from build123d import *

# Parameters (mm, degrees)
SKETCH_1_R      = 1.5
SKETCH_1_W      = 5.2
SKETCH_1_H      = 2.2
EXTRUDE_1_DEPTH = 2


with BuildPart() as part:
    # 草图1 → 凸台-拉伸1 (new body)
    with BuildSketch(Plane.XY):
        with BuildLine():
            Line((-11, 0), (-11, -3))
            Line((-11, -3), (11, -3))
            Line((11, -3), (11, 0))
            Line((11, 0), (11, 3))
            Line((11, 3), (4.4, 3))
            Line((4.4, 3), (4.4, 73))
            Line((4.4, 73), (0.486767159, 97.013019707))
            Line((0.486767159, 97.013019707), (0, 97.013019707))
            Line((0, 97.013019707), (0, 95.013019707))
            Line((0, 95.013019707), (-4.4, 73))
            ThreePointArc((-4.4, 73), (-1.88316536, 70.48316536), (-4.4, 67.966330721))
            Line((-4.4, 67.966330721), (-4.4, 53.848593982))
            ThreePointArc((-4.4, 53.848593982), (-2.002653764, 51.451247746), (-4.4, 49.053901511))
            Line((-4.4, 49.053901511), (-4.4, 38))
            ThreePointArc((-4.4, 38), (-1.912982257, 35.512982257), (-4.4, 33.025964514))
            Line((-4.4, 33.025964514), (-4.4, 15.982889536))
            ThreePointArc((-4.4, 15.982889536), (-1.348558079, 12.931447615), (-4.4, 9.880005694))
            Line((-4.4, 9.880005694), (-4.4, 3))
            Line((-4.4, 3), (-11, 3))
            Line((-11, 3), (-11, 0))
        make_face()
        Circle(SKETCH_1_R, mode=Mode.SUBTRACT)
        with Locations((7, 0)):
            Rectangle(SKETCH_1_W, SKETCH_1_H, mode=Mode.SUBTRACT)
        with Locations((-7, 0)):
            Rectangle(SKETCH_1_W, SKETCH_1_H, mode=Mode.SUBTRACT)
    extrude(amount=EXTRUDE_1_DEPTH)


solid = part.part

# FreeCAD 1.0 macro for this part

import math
import FreeCAD as App
import Part
import Sketcher
from FreeCAD import Vector


def add_polygon(sketch, points):
    """Adds a closed chain of lines whose ends are joined by coincident constraints."""
    first, n = sketch.GeometryCount, len(points)
    for a, b in zip(points, points[1:] + points[:1]):
        sketch.addGeometry(Part.LineSegment(App.Vector(*a, 0), App.Vector(*b, 0)), False)
    for i in range(n):
        sketch.addConstraint(Sketcher.Constraint("Coincident", first + i, 2, first + (i + 1) % n, 1))

doc = App.newDocument("Part")
body = doc.addObject("PartDesign::Body", "Body")

# Sketch on XY plane
sketch1 = doc.addObject("Sketcher::SketchObject", "Sketch")
body.addObject(sketch1)
sketch1.AttachmentSupport = (doc.XY_Plane, [""])
sketch1.MapMode = "FlatFace"
sketch1.addGeometry(Part.LineSegment(Vector(-11, -3, 0), Vector(11, -3, 0)), False)  # 0
sketch1.addGeometry(Part.LineSegment(Vector(11, -3, 0), Vector(11, 3, 0)), False)  # 1
sketch1.addGeometry(Part.LineSegment(Vector(11, 3, 0), Vector(4.4, 3, 0)), False)  # 2
sketch1.addGeometry(Part.LineSegment(Vector(4.4, 3, 0), Vector(4.4, 73, 0)), False)  # 3
sketch1.addGeometry(Part.LineSegment(Vector(4.4, 73, 0), Vector(0.49, 97.01, 0)), False)  # 4
sketch1.addGeometry(Part.LineSegment(Vector(0.49, 97.01, 0), Vector(0, 97.01, 0)), False)  # 5
sketch1.addGeometry(Part.LineSegment(Vector(0, 97.01, 0), Vector(0, 95.01, 0)), False)  # 6
sketch1.addGeometry(Part.LineSegment(Vector(0, 95.01, 0), Vector(-4.4, 73, 0)), False)  # 7
sketch1.addGeometry(Part.ArcOfCircle(Part.Circle(Vector(-4.4, 70.48, 0), Vector(0, 0, 1), 2.52), math.radians(-90), math.radians(90)), False)  # 8
sketch1.addGeometry(Part.LineSegment(Vector(-4.4, 67.97, 0), Vector(-4.4, 53.85, 0)), False)  # 9
sketch1.addGeometry(Part.ArcOfCircle(Part.Circle(Vector(-4.4, 51.45, 0), Vector(0, 0, 1), 2.4), math.radians(-90), math.radians(90)), False)  # 10
sketch1.addGeometry(Part.LineSegment(Vector(-4.4, 49.05, 0), Vector(-4.4, 38, 0)), False)  # 11
sketch1.addGeometry(Part.ArcOfCircle(Part.Circle(Vector(-4.4, 35.51, 0), Vector(0, 0, 1), 2.49), math.radians(-90), math.radians(90)), False)  # 12
sketch1.addGeometry(Part.LineSegment(Vector(-4.4, 33.03, 0), Vector(-4.4, 15.98, 0)), False)  # 13
sketch1.addGeometry(Part.ArcOfCircle(Part.Circle(Vector(-4.4, 12.93, 0), Vector(0, 0, 1), 3.05), math.radians(-90), math.radians(90)), False)  # 14
sketch1.addGeometry(Part.LineSegment(Vector(-4.4, 9.88, 0), Vector(-4.4, 3, 0)), False)  # 15
sketch1.addGeometry(Part.LineSegment(Vector(-4.4, 3, 0), Vector(-11, 3, 0)), False)  # 16
sketch1.addGeometry(Part.LineSegment(Vector(-11, 3, 0), Vector(-11, -3, 0)), False)  # 17
add_polygon(sketch1, [(-4.4, -1.1), (-9.6, -1.1), (-9.6, 1.1), (-4.4, 1.1)])  # lines 18-21
sketch1.addGeometry(Part.Circle(Vector(0, 0, 0), Vector(0, 0, 1), 1.5), False)  # 22
add_polygon(sketch1, [(9.6, -1.1), (4.4, -1.1), (4.4, 1.1), (9.6, 1.1)])  # lines 23-26
sketch1.addConstraint(Sketcher.Constraint("Coincident", 0, 2, 1, 1))
sketch1.addConstraint(Sketcher.Constraint("Coincident", 1, 2, 2, 1))
sketch1.addConstraint(Sketcher.Constraint("Coincident", 2, 2, 3, 1))
sketch1.addConstraint(Sketcher.Constraint("Coincident", 3, 2, 4, 1))
sketch1.addConstraint(Sketcher.Constraint("Coincident", 4, 2, 5, 1))
sketch1.addConstraint(Sketcher.Constraint("Coincident", 5, 2, 6, 1))
sketch1.addConstraint(Sketcher.Constraint("Coincident", 6, 2, 7, 1))
sketch1.addConstraint(Sketcher.Constraint("Coincident", 7, 2, 8, 2))
sketch1.addConstraint(Sketcher.Constraint("Coincident", 8, 1, 9, 1))
sketch1.addConstraint(Sketcher.Constraint("Coincident", 9, 2, 10, 2))
sketch1.addConstraint(Sketcher.Constraint("Coincident", 10, 1, 11, 1))
sketch1.addConstraint(Sketcher.Constraint("Coincident", 11, 2, 12, 2))
sketch1.addConstraint(Sketcher.Constraint("Coincident", 12, 1, 13, 1))
sketch1.addConstraint(Sketcher.Constraint("Coincident", 13, 2, 14, 2))
sketch1.addConstraint(Sketcher.Constraint("Coincident", 14, 1, 15, 1))
sketch1.addConstraint(Sketcher.Constraint("Coincident", 15, 2, 16, 1))
sketch1.addConstraint(Sketcher.Constraint("Coincident", 16, 2, 17, 1))
sketch1.addConstraint(Sketcher.Constraint("Coincident", 17, 2, 0, 1))
sketch1.addConstraint(Sketcher.Constraint("Horizontal", 0))
sketch1.addConstraint(Sketcher.Constraint("Vertical", 1))
sketch1.addConstraint(Sketcher.Constraint("Horizontal", 2))
sketch1.addConstraint(Sketcher.Constraint("Vertical", 3))
sketch1.addConstraint(Sketcher.Constraint("Horizontal", 5))
sketch1.addConstraint(Sketcher.Constraint("Vertical", 6))
sketch1.addConstraint(Sketcher.Constraint("Vertical", 9))
sketch1.addConstraint(Sketcher.Constraint("Vertical", 11))
sketch1.addConstraint(Sketcher.Constraint("Vertical", 13))
sketch1.addConstraint(Sketcher.Constraint("Vertical", 15))
sketch1.addConstraint(Sketcher.Constraint("Horizontal", 16))
sketch1.addConstraint(Sketcher.Constraint("Vertical", 17))
sketch1.addConstraint(Sketcher.Constraint("Horizontal", 18))
sketch1.addConstraint(Sketcher.Constraint("Vertical", 19))
sketch1.addConstraint(Sketcher.Constraint("Horizontal", 20))
sketch1.addConstraint(Sketcher.Constraint("Vertical", 21))
sketch1.addConstraint(Sketcher.Constraint("Horizontal", 23))
sketch1.addConstraint(Sketcher.Constraint("Vertical", 24))
sketch1.addConstraint(Sketcher.Constraint("Horizontal", 25))
sketch1.addConstraint(Sketcher.Constraint("Vertical", 26))
sketch1.addConstraint(Sketcher.Constraint("Coincident", 22, 3, -1, 1))
sketch1.addConstraint(Sketcher.Constraint("Symmetric", 0, 2, 16, 2, -1, 1))
sketch1.addConstraint(Sketcher.Constraint("Symmetric", 20, 2, 23, 2, -1, 1))
sketch1.addConstraint(Sketcher.Constraint("Symmetric", 18, 2, 25, 2, -1, 1))
sketch1.addConstraint(Sketcher.Constraint("Symmetric", 3, 2, 7, 2, -2))
sketch1.addConstraint(Sketcher.Constraint("Symmetric", 2, 2, 15, 2, -2))
sketch1.addConstraint(Sketcher.Constraint("PointOnObject", 5, 2, -2))
sketch1.addConstraint(Sketcher.Constraint("Horizontal", 21, 2, 23, 2))
sketch1.addConstraint(Sketcher.Constraint("Vertical", 8, 3, 10, 3))
sketch1.addConstraint(Sketcher.Constraint("Vertical", 10, 3, 12, 3))
sketch1.addConstraint(Sketcher.Constraint("Vertical", 12, 3, 14, 3))
sketch1.addConstraint(Sketcher.Constraint("Vertical", 14, 3, 7, 2))
sketch1.addConstraint(Sketcher.Constraint("Vertical", 7, 2, 8, 1))
sketch1.addConstraint(Sketcher.Constraint("Vertical", 9, 2, 10, 1))
sketch1.addConstraint(Sketcher.Constraint("Vertical", 11, 2, 12, 1))
sketch1.addConstraint(Sketcher.Constraint("Vertical", 15, 2, 20, 2))
sketch1.addConstraint(Sketcher.Constraint("Diameter", 22, 3.0))
sketch1.addConstraint(Sketcher.Constraint("DistanceX", 0, 1, 0, 2, 22.0))
sketch1.addConstraint(Sketcher.Constraint("DistanceY", 1, 1, 1, 2, 6.0))
sketch1.addConstraint(Sketcher.Constraint("DistanceY", 3, 1, 3, 2, 70.0))
sketch1.addConstraint(Sketcher.Constraint("DistanceY", 6, 2, 6, 1, 2.0))
sketch1.addConstraint(Sketcher.Constraint("DistanceX", 2, 2, 2, 1, 6.6))
sketch1.addConstraint(Sketcher.Constraint("DistanceX", 18, 2, 18, 1, 5.2))
sketch1.addConstraint(Sketcher.Constraint("DistanceY", 19, 1, 19, 2, 2.2))
sketch1.addConstraint(Sketcher.Constraint("DistanceY", -1, 1, 11, 2, 38.0))
sketch1.addConstraint(Sketcher.Constraint("Radius", 14, 3.051442))
sketch1.addConstraint(Sketcher.Constraint("DistanceY", 11, 2, 11, 1, 11.053902))
sketch1.addConstraint(Sketcher.Constraint("Radius", 8, 2.516835))
sketch1.addConstraint(Sketcher.Constraint("Radius", 10, 2.397346))
sketch1.addConstraint(Sketcher.Constraint("Radius", 12, 2.487018))
sketch1.addConstraint(Sketcher.Constraint("DistanceY", 14, 3, 10, 3, 38.5198))
sketch1.addConstraint(Sketcher.Constraint("DistanceX", 5, 2, 5, 1, 0.486767))
sketch1.addConstraint(Sketcher.Constraint("DistanceY", -1, 1, 4, 2, 97.01302))
pad1 = doc.addObject("PartDesign::Pad", "Pad")
body.addObject(pad1)
pad1.Profile = sketch1
pad1.Length = 2

doc.recompute()
